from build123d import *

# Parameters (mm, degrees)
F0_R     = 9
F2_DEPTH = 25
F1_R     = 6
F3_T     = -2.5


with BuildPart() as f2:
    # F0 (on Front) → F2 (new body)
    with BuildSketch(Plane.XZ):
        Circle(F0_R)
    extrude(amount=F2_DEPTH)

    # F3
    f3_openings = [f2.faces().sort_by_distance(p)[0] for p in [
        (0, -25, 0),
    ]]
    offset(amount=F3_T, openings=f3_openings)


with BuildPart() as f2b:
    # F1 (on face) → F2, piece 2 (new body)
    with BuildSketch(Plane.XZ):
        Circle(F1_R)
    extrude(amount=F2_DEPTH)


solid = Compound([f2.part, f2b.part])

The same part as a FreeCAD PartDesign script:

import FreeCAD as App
import Part
import Sketcher
from FreeCAD import Vector
Q = App.Units.Quantity


def faces_at(feature, points):
    """Names of the faces that lie closest to the given points."""
    faces = feature.Shape.Faces
    near = lambda p: min(range(len(faces)), key=lambda i: faces[i].distToShape(Part.Vertex(*p))[0])
    return sorted({f"Face{near(p) + 1}" for p in points})

doc = App.newDocument("Part")
body = doc.addObject("PartDesign::Body", "Body")

# Sketch on XZ plane
sketch1 = body.newObject("Sketcher::SketchObject", "Sketch")
sketch1.AttachmentSupport = (doc.getObject("XZ_Plane"), [""])
sketch1.MapMode = "FlatFace"
sketch1.addGeometry(Part.Circle(Vector(0, 0, 0), Vector(0, 0, 1), 9), False)
sketch1.addConstraint(Sketcher.Constraint("Coincident", 0, 3, -1, 1))
sketch1.addConstraint(Sketcher.Constraint("Diameter", 0, Q("18 mm")))
pad1 = body.newObject("PartDesign::Pad", "Pad")
pad1.Profile = sketch1
pad1.Length = 25
doc.recompute()

thickness = body.newObject("PartDesign::Thickness", "Thickness")
thickness.Base = (pad1, faces_at(pad1, [(0, -25, 0)]))
thickness.Value = 2.5
thickness.Reversed = True
thickness.Join = "Arc"
body2 = doc.addObject("PartDesign::Body", "Body001")

# Sketch on XZ plane
sketch2 = body2.newObject("Sketcher::SketchObject", "Sketch001")
sketch2.AttachmentSupport = (doc.getObject("XZ_Plane001"), [""])
sketch2.MapMode = "FlatFace"
sketch2.addGeometry(Part.Circle(Vector(0, 0, 0), Vector(0, 0, 1), 6), False)
sketch2.addConstraint(Sketcher.Constraint("Coincident", 0, 3, -1, 1))
sketch2.addConstraint(Sketcher.Constraint("Diameter", 0, Q("12 mm")))
pad2 = body2.newObject("PartDesign::Pad", "Pad001")
pad2.Profile = sketch2
pad2.Length = 25

doc.recompute()
